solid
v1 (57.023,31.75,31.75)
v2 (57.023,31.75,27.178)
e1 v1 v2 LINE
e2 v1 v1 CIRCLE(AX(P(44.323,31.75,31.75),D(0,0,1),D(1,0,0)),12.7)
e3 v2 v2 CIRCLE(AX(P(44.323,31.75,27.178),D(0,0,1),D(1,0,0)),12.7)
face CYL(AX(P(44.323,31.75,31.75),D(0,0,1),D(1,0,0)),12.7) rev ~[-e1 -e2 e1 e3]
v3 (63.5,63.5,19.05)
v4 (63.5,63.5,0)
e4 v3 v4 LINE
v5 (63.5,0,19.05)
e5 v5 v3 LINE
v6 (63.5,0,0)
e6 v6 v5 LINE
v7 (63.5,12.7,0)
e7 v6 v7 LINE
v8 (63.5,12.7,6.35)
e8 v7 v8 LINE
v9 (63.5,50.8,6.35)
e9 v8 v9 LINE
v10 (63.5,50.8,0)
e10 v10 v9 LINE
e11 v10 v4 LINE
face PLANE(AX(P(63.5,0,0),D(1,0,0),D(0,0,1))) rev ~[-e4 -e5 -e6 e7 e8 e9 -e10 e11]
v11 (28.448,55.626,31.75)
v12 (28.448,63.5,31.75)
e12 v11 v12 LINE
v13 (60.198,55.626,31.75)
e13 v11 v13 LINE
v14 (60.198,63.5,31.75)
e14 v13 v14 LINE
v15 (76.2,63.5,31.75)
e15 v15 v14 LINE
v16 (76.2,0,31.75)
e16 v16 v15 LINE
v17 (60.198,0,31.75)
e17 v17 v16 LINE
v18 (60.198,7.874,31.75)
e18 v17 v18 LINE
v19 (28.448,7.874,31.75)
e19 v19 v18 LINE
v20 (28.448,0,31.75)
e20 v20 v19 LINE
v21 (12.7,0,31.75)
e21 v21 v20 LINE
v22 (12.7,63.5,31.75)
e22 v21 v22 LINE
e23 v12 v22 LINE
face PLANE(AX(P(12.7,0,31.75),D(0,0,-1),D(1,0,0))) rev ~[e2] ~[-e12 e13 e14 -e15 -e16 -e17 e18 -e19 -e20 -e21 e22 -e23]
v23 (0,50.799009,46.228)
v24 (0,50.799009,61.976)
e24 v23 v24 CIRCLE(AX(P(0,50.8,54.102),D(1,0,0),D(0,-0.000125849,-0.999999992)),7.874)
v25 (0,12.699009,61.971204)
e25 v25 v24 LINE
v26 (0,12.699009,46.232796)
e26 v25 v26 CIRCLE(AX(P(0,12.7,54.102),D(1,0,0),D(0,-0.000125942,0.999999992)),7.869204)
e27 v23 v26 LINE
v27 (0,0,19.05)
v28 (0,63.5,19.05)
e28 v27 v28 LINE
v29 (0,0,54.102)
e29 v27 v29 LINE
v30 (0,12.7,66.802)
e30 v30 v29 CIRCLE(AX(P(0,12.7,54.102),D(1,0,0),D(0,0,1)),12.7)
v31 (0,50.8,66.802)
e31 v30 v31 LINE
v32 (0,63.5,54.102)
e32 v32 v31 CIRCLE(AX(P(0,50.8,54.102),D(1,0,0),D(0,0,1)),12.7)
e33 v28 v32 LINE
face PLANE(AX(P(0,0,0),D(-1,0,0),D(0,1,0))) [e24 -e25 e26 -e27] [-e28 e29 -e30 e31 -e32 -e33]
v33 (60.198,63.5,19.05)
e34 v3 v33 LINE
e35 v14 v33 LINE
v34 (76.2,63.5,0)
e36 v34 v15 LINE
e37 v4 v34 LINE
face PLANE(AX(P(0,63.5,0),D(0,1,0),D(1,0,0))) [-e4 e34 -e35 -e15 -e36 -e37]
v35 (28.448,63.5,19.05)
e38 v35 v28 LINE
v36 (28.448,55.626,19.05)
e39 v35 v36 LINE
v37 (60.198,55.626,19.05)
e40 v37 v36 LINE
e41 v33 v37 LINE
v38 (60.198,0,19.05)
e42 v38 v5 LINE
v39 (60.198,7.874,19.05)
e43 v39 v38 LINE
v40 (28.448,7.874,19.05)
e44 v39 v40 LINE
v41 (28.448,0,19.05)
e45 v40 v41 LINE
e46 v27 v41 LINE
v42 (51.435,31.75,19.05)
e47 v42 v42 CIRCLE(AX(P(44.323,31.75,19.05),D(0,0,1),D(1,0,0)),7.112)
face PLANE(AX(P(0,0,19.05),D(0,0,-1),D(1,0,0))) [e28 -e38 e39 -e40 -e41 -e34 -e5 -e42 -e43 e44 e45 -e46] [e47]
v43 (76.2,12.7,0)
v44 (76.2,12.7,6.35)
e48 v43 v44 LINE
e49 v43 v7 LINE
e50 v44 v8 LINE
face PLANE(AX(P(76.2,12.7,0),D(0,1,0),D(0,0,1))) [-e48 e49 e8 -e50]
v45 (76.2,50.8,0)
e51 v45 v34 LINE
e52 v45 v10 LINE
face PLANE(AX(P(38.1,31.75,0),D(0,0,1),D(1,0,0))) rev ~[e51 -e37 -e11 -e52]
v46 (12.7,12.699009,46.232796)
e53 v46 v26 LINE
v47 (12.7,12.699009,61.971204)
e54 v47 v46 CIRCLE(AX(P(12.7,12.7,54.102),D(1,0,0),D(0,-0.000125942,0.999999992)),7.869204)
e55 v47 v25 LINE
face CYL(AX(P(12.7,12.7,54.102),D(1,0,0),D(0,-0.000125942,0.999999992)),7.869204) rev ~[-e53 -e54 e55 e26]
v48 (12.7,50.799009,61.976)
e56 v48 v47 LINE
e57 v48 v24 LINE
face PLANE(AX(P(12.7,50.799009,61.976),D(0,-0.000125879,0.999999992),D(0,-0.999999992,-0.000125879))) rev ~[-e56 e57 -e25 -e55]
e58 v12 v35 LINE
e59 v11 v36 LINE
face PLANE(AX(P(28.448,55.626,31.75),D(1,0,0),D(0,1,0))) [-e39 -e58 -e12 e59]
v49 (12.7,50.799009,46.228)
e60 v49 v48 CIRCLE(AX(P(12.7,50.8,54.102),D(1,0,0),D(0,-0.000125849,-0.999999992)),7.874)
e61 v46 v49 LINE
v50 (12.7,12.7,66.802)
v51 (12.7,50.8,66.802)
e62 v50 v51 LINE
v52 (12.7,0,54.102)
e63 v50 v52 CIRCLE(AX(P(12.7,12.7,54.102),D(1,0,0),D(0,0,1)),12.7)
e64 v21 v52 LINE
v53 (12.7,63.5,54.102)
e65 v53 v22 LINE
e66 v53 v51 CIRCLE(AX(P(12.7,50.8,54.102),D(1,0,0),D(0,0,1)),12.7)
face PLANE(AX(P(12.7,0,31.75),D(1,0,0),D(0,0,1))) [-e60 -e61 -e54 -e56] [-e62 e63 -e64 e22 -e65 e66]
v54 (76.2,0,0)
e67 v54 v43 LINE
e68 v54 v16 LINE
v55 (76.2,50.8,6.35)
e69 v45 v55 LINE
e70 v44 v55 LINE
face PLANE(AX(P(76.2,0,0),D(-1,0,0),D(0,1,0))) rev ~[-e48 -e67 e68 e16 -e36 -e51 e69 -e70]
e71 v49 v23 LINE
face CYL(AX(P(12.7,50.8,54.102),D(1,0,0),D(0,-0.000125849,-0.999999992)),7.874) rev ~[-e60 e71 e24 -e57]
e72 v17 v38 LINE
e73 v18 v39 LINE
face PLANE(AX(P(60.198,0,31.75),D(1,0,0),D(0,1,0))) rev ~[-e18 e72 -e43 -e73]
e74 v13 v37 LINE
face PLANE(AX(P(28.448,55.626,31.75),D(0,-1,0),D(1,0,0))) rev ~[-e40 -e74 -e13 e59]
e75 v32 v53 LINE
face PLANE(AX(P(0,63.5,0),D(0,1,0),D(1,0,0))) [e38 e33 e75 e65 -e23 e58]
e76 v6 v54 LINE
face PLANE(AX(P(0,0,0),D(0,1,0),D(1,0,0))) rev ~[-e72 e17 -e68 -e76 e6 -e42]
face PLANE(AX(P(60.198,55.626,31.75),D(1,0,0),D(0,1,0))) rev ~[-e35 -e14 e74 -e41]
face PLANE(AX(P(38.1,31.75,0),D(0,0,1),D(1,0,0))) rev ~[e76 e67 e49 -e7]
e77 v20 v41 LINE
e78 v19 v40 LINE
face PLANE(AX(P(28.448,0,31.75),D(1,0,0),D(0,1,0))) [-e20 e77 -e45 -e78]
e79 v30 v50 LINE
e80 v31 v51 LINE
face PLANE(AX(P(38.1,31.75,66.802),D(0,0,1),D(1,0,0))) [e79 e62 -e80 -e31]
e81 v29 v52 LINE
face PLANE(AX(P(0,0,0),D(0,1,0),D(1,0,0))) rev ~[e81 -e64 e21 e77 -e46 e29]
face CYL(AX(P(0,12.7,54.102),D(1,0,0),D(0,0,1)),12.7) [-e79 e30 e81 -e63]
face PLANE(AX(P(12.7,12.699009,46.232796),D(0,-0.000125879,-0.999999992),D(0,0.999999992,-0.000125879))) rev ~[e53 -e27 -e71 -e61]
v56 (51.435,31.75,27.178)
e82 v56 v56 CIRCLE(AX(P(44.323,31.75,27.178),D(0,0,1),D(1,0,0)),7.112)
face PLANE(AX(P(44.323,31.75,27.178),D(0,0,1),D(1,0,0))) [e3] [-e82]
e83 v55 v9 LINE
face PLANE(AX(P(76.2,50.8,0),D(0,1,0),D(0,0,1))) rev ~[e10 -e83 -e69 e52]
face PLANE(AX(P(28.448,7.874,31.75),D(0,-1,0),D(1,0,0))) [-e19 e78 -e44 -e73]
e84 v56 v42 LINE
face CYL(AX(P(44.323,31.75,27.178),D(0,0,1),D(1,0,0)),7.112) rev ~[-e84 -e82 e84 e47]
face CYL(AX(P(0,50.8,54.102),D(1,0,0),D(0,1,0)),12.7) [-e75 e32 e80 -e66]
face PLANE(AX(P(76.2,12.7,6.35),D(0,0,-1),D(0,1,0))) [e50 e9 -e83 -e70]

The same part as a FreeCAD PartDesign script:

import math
import FreeCAD as App
import Part
import Sketcher
Q = App.Units.Quantity


def edges_at(feature, points):
    """Names of the edges that pass closest to the given points."""
    edges = feature.Shape.Edges
    near = lambda p: min(range(len(edges)), key=lambda i: edges[i].distToShape(Part.Vertex(*p))[0])
    return sorted({f"Edge{near(p) + 1}" for p in points})


def add_polygon(sketch, points):
    """Adds a closed chain of lines whose ends are joined by coincident constraints."""
    first, n = sketch.GeometryCount, len(points)
    for a, b in zip(points, points[1:] + points[:1]):
        sketch.addGeometry(Part.LineSegment(App.Vector(*a, 0), App.Vector(*b, 0)), False)
    for i in range(n):
        sketch.addConstraint(Sketcher.Constraint("Coincident", first + i, 2, first + (i + 1) % n, 1))

doc = App.newDocument("Part")
body = doc.addObject("PartDesign::Body", "Body")

sketch1 = doc.addObject("Sketcher::SketchObject", "Sketch")
body.addObject(sketch1)
sketch1.AttachmentSupport = (doc.XY_Plane, [""])
sketch1.MapMode = "FlatFace"
add_polygon(sketch1, [(0, 64), (0, 0), (76, 0), (76, 64)])
sketch1.addConstraint([
    Sketcher.Constraint("Vertical", 0),
    Sketcher.Constraint("Horizontal", 1),
    Sketcher.Constraint("Vertical", 2),
    Sketcher.Constraint("Horizontal", 3),
    Sketcher.Constraint("Coincident", 0, 2, -1, 1),
    Sketcher.Constraint("DistanceX", 1, 1, 1, 2, Q("3 in")),
    Sketcher.Constraint("DistanceY", 0, 2, 0, 1, Q("2.5 in")),
])
pad1 = doc.addObject("PartDesign::Pad", "Pad")
body.addObject(pad1)
pad1.Profile = sketch1
pad1.Length = Q("2.63 in")

sketch2 = doc.addObject("Sketcher::SketchObject", "Sketch001")
body.addObject(sketch2)
sketch2.AttachmentSupport = (doc.XZ_Plane, [""])
sketch2.MapMode = "FlatFace"
add_polygon(sketch2, [(13, 67), (13, 32), (76, 32), (76, 67)])
add_polygon(sketch2, [(0, 19), (0, 0), (64, 0), (64, 19)])
sketch2.addConstraint([
    Sketcher.Constraint("Vertical", 0),
    Sketcher.Constraint("Horizontal", 1),
    Sketcher.Constraint("Vertical", 2),
    Sketcher.Constraint("Horizontal", 3),
    Sketcher.Constraint("Vertical", 4),
    Sketcher.Constraint("Horizontal", 5),
    Sketcher.Constraint("Vertical", 6),
    Sketcher.Constraint("Horizontal", 7),
    Sketcher.Constraint("Coincident", 4, 2, -1, 1),
    Sketcher.Constraint("Equal", 3, 5),
    Sketcher.Constraint("DistanceX", 1, 1, 1, 2, Q("2.5 in")),
    Sketcher.Constraint("DistanceX", -1, 1, 1, 2, Q("3 in")),
    Sketcher.Constraint("DistanceY", 0, 2, 0, 1, Q("1.38 in")),
    Sketcher.Constraint("DistanceY", 4, 2, 4, 1, Q("0.75 in")),
    Sketcher.Constraint("DistanceY", 6, 2, 1, 2, Q("0.5 in")),
])
pocket1 = doc.addObject("PartDesign::Pocket", "Pocket")
body.addObject(pocket1)
pocket1.Profile = sketch2
pocket1.Type = "ThroughAll"
doc.recompute()

fillet = doc.addObject("PartDesign::Fillet", "Fillet")
body.addObject(fillet)
fillet.Base = (pocket1, edges_at(pocket1, [(6.35, 0, 66.802), (6.35, 63.5, 66.802)]))
fillet.Radius = Q("0.5 in")

sketch3 = doc.addObject("Sketcher::SketchObject", "Sketch002")
body.addObject(sketch3)
sketch3.AttachmentSupport = (doc.YZ_Plane, [""])
sketch3.MapMode = "FlatFace"
sketch3.AttachmentOffset = App.Placement(App.Vector(0, 0, 3 * 25.4), App.Rotation())
add_polygon(sketch3, [(13, 6), (13, 0), (51, 0), (51, 6)])
sketch3.addConstraint([
    Sketcher.Constraint("Vertical", 0),
    Sketcher.Constraint("Horizontal", 1),
    Sketcher.Constraint("Vertical", 2),
    Sketcher.Constraint("Horizontal", 3),
    Sketcher.Constraint("PointOnObject", 0, 2, -1),
    Sketcher.Constraint("DistanceX", 1, 1, 1, 2, Q("1.5 in")),
    Sketcher.Constraint("DistanceX", -1, 1, 1, 2, Q("2 in")),
    Sketcher.Constraint("DistanceY", 0, 2, 0, 1, Q("0.25 in")),
])
pocket2 = doc.addObject("PartDesign::Pocket", "Pocket001")
body.addObject(pocket2)
pocket2.Profile = sketch3
pocket2.Type = "ThroughAll"

sketch4 = doc.addObject("Sketcher::SketchObject", "Sketch003")
body.addObject(sketch4)
sketch4.AttachmentSupport = (doc.YZ_Plane, [""])
sketch4.MapMode = "FlatFace"
sketch4.AttachmentOffset = App.Placement(App.Vector(0, 0, 0.5 * 25.4), App.Rotation())
sketch4.addGeometry([
    Part.LineSegment(App.Vector(51, 62, 0), App.Vector(13, 62, 0)),
    Part.ArcOfCircle(Part.Circle(App.Vector(13, 54, 0), App.Vector(0, 0, 1), 8), math.radians(90), math.radians(270)),
    Part.LineSegment(App.Vector(13, 46, 0), App.Vector(51, 46, 0)),
    Part.ArcOfCircle(Part.Circle(App.Vector(51, 54, 0), App.Vector(0, 0, 1), 8), math.radians(-90), math.radians(90)),
], False)
sketch4.addConstraint([
    Sketcher.Constraint("Tangent", 0, 2, 1, 1),
    Sketcher.Constraint("Tangent", 1, 2, 2, 1),
    Sketcher.Constraint("Tangent", 2, 2, 3, 1),
    Sketcher.Constraint("Tangent", 3, 2, 0, 1),
    Sketcher.Constraint("Horizontal", 1, 3, 3, 3),
    Sketcher.Constraint("Radius", 3, Q("0.31 in")),
    Sketcher.Constraint("DistanceX", -1, 1, 3, 3, Q("2 in")),
    Sketcher.Constraint("Distance", 0, Q("1.5 in")),
    Sketcher.Constraint("DistanceY", -1, 1, 1, 3, Q("2.13 in")),
    Sketcher.Constraint("Radius", 1, 7.869204),
])
pocket3 = doc.addObject("PartDesign::Pocket", "Pocket002")
body.addObject(pocket3)
pocket3.Profile = sketch4
pocket3.Type = "ThroughAll"

sketch5 = doc.addObject("Sketcher::SketchObject", "Sketch004")
body.addObject(sketch5)
sketch5.AttachmentSupport = (doc.XY_Plane, [""])
sketch5.MapMode = "FlatFace"
sketch5.AttachmentOffset = App.Placement(App.Vector(0, 0, 1.25 * 25.4), App.Rotation())
add_polygon(sketch5, [(28, 64), (28, 56), (60, 56), (60, 64)])
add_polygon(sketch5, [(28, 8), (28, 0), (60, 0), (60, 8)])
sketch5.addConstraint([
    Sketcher.Constraint("Vertical", 0),
    Sketcher.Constraint("Horizontal", 1),
    Sketcher.Constraint("Vertical", 2),
    Sketcher.Constraint("Horizontal", 3),
    Sketcher.Constraint("Vertical", 4),
    Sketcher.Constraint("Horizontal", 5),
    Sketcher.Constraint("Vertical", 6),
    Sketcher.Constraint("Horizontal", 7),
    Sketcher.Constraint("PointOnObject", 4, 2, -1),
    Sketcher.Constraint("Vertical", 3, 2, 4, 2),
    Sketcher.Constraint("Vertical", 2, 2, 5, 2),
    Sketcher.Constraint("Equal", 2, 4),
    Sketcher.Constraint("DistanceX", 1, 1, 1, 2, Q("1.25 in")),
    Sketcher.Constraint("DistanceY", 0, 2, 0, 1, Q("0.31 in")),
    Sketcher.Constraint("DistanceY", -1, 1, 2, 2, Q("2.5 in")),
    Sketcher.Constraint("DistanceX", -1, 1, 0, 2, Q("1.12 in")),
])
pocket4 = doc.addObject("PartDesign::Pocket", "Pocket003")
body.addObject(pocket4)
pocket4.Profile = sketch5
pocket4.Type = "ThroughAll"

sketch6 = doc.addObject("Sketcher::SketchObject", "Sketch005")
body.addObject(sketch6)
sketch6.AttachmentSupport = (doc.XY_Plane, [""])
sketch6.MapMode = "FlatFace"
sketch6.AttachmentOffset = App.Placement(App.Vector(0, 0, 1.25 * 25.4), App.Rotation())
sketch6.addGeometry(Part.Circle(App.Vector(44, 32, 0), App.Vector(0, 0, 1), 13), False)
sketch6.addConstraint([
    Sketcher.Constraint("Diameter", 0, Q("1 in")),
    Sketcher.Constraint("DistanceY", -1, 1, 0, 3, Q("1.25 in")),
    Sketcher.Constraint("DistanceX", -1, 1, 0, 3, Q("1.745 in")),
])
pocket5 = doc.addObject("PartDesign::Pocket", "Pocket004")
body.addObject(pocket5)
pocket5.Profile = sketch6
pocket5.Length = Q("0.18 in")

sketch7 = doc.addObject("Sketcher::SketchObject", "Sketch006")
body.addObject(sketch7)
sketch7.AttachmentSupport = (doc.XY_Plane, [""])
sketch7.MapMode = "FlatFace"
sketch7.AttachmentOffset = App.Placement(App.Vector(0, 0, 1.07 * 25.4), App.Rotation())
sketch7.addGeometry(Part.Circle(App.Vector(44, 32, 0), App.Vector(0, 0, 1), 7), False)
sketch7.addConstraint([
    Sketcher.Constraint("Diameter", 0, Q("0.56 in")),
    Sketcher.Constraint("DistanceY", -1, 1, 0, 3, Q("1.25 in")),
    Sketcher.Constraint("DistanceX", -1, 1, 0, 3, Q("1.745 in")),
])
pocket6 = doc.addObject("PartDesign::Pocket", "Pocket005")
body.addObject(pocket6)
pocket6.Profile = sketch7
pocket6.Type = "ThroughAll"

doc.recompute()
